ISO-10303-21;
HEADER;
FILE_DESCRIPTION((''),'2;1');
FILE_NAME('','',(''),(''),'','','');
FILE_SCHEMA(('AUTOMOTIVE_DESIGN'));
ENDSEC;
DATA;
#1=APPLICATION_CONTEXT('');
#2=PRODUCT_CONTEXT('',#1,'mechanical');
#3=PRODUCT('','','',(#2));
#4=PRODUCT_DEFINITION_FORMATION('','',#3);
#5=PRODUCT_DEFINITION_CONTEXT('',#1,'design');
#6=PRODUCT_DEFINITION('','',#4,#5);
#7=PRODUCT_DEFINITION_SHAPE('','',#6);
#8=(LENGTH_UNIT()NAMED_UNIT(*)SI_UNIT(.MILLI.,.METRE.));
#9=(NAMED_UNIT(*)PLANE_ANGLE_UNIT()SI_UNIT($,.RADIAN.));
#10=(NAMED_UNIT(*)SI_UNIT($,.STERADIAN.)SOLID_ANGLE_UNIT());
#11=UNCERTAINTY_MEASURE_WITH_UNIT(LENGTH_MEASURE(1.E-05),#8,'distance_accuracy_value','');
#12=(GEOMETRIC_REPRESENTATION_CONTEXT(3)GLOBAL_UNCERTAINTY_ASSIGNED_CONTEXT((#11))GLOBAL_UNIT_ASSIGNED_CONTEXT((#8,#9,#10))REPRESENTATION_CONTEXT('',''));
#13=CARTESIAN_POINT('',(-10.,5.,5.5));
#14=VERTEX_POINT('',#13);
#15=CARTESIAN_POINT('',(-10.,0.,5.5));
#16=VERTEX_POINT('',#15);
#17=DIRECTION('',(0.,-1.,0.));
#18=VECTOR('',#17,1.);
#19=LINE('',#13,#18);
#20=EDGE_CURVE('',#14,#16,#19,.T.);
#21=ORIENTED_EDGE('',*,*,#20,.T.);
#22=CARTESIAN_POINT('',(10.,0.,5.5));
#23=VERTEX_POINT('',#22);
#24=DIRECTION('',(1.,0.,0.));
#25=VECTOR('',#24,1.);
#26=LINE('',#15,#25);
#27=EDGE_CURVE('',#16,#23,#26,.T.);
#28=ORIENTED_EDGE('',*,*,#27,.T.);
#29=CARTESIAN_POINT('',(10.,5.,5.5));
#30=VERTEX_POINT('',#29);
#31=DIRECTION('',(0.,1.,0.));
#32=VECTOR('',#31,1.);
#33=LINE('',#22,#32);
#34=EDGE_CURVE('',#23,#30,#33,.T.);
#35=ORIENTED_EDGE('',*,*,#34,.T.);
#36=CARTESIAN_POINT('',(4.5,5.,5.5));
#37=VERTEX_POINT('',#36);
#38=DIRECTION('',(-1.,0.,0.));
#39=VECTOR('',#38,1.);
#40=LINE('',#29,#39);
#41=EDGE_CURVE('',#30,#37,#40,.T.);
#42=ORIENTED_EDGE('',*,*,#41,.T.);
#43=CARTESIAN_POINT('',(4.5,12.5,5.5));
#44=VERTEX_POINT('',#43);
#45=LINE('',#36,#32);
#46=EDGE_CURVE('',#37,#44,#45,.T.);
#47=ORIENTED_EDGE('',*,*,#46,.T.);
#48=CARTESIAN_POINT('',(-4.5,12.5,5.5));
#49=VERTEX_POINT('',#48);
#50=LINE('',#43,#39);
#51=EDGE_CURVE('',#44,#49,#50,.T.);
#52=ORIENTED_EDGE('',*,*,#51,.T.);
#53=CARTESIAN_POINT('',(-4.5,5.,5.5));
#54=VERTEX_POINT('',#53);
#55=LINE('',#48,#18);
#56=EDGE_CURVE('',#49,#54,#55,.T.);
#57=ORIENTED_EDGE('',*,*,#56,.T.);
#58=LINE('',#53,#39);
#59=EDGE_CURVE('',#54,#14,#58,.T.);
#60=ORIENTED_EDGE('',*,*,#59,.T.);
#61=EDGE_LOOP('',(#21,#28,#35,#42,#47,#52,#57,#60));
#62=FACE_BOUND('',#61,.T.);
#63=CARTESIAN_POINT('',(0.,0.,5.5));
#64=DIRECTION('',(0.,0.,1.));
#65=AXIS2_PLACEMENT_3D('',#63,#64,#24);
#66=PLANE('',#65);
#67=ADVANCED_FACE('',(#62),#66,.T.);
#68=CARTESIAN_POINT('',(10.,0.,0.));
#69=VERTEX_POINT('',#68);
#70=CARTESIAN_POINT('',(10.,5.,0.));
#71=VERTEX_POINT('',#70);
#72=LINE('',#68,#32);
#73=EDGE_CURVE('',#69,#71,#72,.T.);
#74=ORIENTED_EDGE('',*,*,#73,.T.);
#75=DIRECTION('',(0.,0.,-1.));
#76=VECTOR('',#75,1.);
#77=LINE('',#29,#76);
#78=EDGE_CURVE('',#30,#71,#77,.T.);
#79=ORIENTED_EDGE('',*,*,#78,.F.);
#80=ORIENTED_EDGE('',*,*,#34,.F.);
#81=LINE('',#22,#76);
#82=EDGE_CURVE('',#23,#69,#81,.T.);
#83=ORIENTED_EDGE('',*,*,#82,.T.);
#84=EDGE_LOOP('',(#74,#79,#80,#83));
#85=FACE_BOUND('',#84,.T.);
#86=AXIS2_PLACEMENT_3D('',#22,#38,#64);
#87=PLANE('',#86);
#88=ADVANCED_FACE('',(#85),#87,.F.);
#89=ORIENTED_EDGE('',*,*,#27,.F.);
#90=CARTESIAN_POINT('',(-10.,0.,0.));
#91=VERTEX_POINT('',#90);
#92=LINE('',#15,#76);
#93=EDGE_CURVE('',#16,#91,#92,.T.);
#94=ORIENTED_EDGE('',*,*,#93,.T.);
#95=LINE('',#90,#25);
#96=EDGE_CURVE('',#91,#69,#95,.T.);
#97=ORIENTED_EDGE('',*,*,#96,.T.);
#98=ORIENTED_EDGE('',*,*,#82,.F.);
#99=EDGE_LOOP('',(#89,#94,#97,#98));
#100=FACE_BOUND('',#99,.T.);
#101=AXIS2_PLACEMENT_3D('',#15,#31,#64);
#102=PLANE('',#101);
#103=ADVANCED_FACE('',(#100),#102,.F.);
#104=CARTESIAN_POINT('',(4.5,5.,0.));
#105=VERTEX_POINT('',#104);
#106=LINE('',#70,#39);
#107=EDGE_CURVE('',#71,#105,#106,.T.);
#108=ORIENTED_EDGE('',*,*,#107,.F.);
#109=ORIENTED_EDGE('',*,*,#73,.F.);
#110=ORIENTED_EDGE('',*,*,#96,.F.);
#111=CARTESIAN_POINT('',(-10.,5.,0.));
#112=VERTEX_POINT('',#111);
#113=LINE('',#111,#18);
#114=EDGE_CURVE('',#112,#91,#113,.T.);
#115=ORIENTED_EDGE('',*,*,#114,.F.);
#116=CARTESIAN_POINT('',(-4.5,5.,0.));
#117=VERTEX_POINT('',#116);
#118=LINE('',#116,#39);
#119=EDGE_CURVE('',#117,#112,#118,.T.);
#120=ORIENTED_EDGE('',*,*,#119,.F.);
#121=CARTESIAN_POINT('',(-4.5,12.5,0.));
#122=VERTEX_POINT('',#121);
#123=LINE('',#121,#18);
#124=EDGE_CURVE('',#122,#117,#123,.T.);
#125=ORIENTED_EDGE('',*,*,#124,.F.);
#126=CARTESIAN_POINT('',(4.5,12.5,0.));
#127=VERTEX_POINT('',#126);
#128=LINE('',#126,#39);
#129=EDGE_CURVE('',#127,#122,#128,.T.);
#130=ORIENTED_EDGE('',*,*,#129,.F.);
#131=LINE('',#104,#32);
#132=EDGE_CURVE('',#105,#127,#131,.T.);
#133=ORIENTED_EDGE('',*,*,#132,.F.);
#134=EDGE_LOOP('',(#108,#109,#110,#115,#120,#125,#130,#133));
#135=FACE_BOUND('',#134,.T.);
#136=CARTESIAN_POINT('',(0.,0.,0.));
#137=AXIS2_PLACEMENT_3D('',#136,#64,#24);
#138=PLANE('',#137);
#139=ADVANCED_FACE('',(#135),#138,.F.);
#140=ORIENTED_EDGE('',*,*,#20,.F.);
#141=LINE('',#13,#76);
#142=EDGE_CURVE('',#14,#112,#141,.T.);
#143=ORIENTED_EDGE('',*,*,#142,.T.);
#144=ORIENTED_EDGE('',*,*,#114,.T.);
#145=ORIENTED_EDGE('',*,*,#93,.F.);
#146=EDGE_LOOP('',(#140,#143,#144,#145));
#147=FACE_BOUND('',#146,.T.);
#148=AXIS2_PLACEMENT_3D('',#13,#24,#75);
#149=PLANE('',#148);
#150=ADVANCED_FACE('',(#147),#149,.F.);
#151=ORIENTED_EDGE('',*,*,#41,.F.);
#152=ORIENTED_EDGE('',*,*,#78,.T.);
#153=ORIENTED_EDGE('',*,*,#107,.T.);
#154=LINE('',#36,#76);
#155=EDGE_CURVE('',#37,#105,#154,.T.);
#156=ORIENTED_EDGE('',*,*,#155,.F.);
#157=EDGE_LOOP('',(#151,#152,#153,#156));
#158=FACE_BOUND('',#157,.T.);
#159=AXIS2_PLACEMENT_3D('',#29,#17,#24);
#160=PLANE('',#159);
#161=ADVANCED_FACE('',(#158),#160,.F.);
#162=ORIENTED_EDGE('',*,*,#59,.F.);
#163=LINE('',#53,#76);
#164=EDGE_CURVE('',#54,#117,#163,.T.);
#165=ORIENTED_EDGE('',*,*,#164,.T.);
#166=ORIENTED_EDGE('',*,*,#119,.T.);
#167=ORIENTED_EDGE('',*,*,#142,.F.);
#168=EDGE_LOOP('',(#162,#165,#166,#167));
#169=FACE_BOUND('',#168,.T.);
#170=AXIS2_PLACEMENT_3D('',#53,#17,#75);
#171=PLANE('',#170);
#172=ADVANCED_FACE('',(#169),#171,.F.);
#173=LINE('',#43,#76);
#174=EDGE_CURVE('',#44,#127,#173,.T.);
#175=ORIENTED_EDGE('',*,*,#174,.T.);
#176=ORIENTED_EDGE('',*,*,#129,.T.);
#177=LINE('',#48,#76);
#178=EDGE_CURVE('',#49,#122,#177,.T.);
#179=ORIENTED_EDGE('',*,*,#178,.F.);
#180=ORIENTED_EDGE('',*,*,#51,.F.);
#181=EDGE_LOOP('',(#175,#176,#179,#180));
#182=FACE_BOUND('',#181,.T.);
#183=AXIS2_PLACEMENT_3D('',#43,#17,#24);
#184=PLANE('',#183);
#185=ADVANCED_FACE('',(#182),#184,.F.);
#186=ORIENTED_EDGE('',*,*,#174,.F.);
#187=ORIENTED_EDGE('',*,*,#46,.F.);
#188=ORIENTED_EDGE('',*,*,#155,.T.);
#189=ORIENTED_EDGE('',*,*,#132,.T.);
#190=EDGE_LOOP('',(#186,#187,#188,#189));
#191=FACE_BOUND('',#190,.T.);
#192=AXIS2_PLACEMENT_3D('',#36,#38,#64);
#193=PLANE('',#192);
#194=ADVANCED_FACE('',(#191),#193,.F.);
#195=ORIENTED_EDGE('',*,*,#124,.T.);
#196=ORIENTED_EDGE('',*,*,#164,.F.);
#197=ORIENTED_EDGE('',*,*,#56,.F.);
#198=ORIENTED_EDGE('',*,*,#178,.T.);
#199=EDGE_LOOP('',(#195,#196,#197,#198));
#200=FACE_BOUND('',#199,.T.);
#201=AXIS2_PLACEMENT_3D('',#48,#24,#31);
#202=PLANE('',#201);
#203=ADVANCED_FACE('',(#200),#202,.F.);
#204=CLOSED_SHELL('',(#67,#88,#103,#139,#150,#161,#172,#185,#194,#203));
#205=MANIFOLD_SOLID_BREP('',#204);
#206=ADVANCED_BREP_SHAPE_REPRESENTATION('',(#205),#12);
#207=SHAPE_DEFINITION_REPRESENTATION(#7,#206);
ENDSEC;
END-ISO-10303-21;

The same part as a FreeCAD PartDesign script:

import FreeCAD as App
import Part
import Sketcher

doc = App.newDocument("Part")
params = doc.addObject("Spreadsheet::Sheet", "Params")
for row, (alias, value) in enumerate([
    ("sketch1_width", "20 mm"),
    ("sketch1_width2", "9 mm"),
    ("sketch1_height", "5 mm"),
    ("sketch1_height2", "7.5 mm"),
    ("pad1_length", "5.5 mm"),
], start=1):
    params.set(f"A{row}", alias)
    params.set(f"B{row}", "=" + value)
    params.setAlias(f"B{row}", alias)

body = doc.addObject("PartDesign::Body", "Body")

# Sketch on XY plane
sketch1 = doc.addObject("Sketcher::SketchObject", "Sketch")
body.addObject(sketch1)
sketch1.AttachmentSupport = (doc.XY_Plane, [""])
sketch1.MapMode = "FlatFace"
sketch1.addGeometry([
    Part.LineSegment(App.Vector(-10, 0, 0), App.Vector(10, 0, 0)),  # 0
    Part.LineSegment(App.Vector(10, 0, 0), App.Vector(10, 5, 0)),  # 1
    Part.LineSegment(App.Vector(10, 5, 0), App.Vector(4, 5, 0)),  # 2
    Part.LineSegment(App.Vector(4, 5, 0), App.Vector(4, 12, 0)),  # 3
    Part.LineSegment(App.Vector(4, 12, 0), App.Vector(-4, 12, 0)),  # 4
    Part.LineSegment(App.Vector(-4, 12, 0), App.Vector(-4, 5, 0)),  # 5
    Part.LineSegment(App.Vector(-4, 5, 0), App.Vector(-10, 5, 0)),  # 6
    Part.LineSegment(App.Vector(-10, 5, 0), App.Vector(-10, 0, 0)),  # 7
], False)
sketch1.addConstraint([
    Sketcher.Constraint("Coincident", 0, 2, 1, 1),
    Sketcher.Constraint("Coincident", 1, 2, 2, 1),
    Sketcher.Constraint("Coincident", 2, 2, 3, 1),
    Sketcher.Constraint("Coincident", 3, 2, 4, 1),
    Sketcher.Constraint("Coincident", 4, 2, 5, 1),
    Sketcher.Constraint("Coincident", 5, 2, 6, 1),
    Sketcher.Constraint("Coincident", 6, 2, 7, 1),
    Sketcher.Constraint("Coincident", 7, 2, 0, 1),
    Sketcher.Constraint("Horizontal", 0),
    Sketcher.Constraint("Vertical", 1),
    Sketcher.Constraint("Horizontal", 2),
    Sketcher.Constraint("Vertical", 3),
    Sketcher.Constraint("Horizontal", 4),
    Sketcher.Constraint("Vertical", 5),
    Sketcher.Constraint("Horizontal", 6),
    Sketcher.Constraint("Vertical", 7),
    Sketcher.Constraint("Symmetric", 0, 2, 7, 2, -1, 1),
    Sketcher.Constraint("Symmetric", 2, 2, 5, 2, -2),
    Sketcher.Constraint("DistanceX", 0, 1, 0, 2, 20.0),
    Sketcher.Constraint("DistanceX", 4, 2, 4, 1, 9.0),
    Sketcher.Constraint("DistanceY", 1, 1, 1, 2, 5.0),
    Sketcher.Constraint("DistanceY", 3, 1, 3, 2, 7.5),
])
sketch1.setExpression("Constraints[18]", "Params.sketch1_width")
sketch1.setExpression("Constraints[19]", "Params.sketch1_width2")
sketch1.setExpression("Constraints[20]", "Params.sketch1_height")
sketch1.setExpression("Constraints[21]", "Params.sketch1_height2")
pad1 = doc.addObject("PartDesign::Pad", "Pad")
body.addObject(pad1)
pad1.Profile = sketch1
pad1.setExpression("Length", "Params.pad1_length")

doc.recompute()
